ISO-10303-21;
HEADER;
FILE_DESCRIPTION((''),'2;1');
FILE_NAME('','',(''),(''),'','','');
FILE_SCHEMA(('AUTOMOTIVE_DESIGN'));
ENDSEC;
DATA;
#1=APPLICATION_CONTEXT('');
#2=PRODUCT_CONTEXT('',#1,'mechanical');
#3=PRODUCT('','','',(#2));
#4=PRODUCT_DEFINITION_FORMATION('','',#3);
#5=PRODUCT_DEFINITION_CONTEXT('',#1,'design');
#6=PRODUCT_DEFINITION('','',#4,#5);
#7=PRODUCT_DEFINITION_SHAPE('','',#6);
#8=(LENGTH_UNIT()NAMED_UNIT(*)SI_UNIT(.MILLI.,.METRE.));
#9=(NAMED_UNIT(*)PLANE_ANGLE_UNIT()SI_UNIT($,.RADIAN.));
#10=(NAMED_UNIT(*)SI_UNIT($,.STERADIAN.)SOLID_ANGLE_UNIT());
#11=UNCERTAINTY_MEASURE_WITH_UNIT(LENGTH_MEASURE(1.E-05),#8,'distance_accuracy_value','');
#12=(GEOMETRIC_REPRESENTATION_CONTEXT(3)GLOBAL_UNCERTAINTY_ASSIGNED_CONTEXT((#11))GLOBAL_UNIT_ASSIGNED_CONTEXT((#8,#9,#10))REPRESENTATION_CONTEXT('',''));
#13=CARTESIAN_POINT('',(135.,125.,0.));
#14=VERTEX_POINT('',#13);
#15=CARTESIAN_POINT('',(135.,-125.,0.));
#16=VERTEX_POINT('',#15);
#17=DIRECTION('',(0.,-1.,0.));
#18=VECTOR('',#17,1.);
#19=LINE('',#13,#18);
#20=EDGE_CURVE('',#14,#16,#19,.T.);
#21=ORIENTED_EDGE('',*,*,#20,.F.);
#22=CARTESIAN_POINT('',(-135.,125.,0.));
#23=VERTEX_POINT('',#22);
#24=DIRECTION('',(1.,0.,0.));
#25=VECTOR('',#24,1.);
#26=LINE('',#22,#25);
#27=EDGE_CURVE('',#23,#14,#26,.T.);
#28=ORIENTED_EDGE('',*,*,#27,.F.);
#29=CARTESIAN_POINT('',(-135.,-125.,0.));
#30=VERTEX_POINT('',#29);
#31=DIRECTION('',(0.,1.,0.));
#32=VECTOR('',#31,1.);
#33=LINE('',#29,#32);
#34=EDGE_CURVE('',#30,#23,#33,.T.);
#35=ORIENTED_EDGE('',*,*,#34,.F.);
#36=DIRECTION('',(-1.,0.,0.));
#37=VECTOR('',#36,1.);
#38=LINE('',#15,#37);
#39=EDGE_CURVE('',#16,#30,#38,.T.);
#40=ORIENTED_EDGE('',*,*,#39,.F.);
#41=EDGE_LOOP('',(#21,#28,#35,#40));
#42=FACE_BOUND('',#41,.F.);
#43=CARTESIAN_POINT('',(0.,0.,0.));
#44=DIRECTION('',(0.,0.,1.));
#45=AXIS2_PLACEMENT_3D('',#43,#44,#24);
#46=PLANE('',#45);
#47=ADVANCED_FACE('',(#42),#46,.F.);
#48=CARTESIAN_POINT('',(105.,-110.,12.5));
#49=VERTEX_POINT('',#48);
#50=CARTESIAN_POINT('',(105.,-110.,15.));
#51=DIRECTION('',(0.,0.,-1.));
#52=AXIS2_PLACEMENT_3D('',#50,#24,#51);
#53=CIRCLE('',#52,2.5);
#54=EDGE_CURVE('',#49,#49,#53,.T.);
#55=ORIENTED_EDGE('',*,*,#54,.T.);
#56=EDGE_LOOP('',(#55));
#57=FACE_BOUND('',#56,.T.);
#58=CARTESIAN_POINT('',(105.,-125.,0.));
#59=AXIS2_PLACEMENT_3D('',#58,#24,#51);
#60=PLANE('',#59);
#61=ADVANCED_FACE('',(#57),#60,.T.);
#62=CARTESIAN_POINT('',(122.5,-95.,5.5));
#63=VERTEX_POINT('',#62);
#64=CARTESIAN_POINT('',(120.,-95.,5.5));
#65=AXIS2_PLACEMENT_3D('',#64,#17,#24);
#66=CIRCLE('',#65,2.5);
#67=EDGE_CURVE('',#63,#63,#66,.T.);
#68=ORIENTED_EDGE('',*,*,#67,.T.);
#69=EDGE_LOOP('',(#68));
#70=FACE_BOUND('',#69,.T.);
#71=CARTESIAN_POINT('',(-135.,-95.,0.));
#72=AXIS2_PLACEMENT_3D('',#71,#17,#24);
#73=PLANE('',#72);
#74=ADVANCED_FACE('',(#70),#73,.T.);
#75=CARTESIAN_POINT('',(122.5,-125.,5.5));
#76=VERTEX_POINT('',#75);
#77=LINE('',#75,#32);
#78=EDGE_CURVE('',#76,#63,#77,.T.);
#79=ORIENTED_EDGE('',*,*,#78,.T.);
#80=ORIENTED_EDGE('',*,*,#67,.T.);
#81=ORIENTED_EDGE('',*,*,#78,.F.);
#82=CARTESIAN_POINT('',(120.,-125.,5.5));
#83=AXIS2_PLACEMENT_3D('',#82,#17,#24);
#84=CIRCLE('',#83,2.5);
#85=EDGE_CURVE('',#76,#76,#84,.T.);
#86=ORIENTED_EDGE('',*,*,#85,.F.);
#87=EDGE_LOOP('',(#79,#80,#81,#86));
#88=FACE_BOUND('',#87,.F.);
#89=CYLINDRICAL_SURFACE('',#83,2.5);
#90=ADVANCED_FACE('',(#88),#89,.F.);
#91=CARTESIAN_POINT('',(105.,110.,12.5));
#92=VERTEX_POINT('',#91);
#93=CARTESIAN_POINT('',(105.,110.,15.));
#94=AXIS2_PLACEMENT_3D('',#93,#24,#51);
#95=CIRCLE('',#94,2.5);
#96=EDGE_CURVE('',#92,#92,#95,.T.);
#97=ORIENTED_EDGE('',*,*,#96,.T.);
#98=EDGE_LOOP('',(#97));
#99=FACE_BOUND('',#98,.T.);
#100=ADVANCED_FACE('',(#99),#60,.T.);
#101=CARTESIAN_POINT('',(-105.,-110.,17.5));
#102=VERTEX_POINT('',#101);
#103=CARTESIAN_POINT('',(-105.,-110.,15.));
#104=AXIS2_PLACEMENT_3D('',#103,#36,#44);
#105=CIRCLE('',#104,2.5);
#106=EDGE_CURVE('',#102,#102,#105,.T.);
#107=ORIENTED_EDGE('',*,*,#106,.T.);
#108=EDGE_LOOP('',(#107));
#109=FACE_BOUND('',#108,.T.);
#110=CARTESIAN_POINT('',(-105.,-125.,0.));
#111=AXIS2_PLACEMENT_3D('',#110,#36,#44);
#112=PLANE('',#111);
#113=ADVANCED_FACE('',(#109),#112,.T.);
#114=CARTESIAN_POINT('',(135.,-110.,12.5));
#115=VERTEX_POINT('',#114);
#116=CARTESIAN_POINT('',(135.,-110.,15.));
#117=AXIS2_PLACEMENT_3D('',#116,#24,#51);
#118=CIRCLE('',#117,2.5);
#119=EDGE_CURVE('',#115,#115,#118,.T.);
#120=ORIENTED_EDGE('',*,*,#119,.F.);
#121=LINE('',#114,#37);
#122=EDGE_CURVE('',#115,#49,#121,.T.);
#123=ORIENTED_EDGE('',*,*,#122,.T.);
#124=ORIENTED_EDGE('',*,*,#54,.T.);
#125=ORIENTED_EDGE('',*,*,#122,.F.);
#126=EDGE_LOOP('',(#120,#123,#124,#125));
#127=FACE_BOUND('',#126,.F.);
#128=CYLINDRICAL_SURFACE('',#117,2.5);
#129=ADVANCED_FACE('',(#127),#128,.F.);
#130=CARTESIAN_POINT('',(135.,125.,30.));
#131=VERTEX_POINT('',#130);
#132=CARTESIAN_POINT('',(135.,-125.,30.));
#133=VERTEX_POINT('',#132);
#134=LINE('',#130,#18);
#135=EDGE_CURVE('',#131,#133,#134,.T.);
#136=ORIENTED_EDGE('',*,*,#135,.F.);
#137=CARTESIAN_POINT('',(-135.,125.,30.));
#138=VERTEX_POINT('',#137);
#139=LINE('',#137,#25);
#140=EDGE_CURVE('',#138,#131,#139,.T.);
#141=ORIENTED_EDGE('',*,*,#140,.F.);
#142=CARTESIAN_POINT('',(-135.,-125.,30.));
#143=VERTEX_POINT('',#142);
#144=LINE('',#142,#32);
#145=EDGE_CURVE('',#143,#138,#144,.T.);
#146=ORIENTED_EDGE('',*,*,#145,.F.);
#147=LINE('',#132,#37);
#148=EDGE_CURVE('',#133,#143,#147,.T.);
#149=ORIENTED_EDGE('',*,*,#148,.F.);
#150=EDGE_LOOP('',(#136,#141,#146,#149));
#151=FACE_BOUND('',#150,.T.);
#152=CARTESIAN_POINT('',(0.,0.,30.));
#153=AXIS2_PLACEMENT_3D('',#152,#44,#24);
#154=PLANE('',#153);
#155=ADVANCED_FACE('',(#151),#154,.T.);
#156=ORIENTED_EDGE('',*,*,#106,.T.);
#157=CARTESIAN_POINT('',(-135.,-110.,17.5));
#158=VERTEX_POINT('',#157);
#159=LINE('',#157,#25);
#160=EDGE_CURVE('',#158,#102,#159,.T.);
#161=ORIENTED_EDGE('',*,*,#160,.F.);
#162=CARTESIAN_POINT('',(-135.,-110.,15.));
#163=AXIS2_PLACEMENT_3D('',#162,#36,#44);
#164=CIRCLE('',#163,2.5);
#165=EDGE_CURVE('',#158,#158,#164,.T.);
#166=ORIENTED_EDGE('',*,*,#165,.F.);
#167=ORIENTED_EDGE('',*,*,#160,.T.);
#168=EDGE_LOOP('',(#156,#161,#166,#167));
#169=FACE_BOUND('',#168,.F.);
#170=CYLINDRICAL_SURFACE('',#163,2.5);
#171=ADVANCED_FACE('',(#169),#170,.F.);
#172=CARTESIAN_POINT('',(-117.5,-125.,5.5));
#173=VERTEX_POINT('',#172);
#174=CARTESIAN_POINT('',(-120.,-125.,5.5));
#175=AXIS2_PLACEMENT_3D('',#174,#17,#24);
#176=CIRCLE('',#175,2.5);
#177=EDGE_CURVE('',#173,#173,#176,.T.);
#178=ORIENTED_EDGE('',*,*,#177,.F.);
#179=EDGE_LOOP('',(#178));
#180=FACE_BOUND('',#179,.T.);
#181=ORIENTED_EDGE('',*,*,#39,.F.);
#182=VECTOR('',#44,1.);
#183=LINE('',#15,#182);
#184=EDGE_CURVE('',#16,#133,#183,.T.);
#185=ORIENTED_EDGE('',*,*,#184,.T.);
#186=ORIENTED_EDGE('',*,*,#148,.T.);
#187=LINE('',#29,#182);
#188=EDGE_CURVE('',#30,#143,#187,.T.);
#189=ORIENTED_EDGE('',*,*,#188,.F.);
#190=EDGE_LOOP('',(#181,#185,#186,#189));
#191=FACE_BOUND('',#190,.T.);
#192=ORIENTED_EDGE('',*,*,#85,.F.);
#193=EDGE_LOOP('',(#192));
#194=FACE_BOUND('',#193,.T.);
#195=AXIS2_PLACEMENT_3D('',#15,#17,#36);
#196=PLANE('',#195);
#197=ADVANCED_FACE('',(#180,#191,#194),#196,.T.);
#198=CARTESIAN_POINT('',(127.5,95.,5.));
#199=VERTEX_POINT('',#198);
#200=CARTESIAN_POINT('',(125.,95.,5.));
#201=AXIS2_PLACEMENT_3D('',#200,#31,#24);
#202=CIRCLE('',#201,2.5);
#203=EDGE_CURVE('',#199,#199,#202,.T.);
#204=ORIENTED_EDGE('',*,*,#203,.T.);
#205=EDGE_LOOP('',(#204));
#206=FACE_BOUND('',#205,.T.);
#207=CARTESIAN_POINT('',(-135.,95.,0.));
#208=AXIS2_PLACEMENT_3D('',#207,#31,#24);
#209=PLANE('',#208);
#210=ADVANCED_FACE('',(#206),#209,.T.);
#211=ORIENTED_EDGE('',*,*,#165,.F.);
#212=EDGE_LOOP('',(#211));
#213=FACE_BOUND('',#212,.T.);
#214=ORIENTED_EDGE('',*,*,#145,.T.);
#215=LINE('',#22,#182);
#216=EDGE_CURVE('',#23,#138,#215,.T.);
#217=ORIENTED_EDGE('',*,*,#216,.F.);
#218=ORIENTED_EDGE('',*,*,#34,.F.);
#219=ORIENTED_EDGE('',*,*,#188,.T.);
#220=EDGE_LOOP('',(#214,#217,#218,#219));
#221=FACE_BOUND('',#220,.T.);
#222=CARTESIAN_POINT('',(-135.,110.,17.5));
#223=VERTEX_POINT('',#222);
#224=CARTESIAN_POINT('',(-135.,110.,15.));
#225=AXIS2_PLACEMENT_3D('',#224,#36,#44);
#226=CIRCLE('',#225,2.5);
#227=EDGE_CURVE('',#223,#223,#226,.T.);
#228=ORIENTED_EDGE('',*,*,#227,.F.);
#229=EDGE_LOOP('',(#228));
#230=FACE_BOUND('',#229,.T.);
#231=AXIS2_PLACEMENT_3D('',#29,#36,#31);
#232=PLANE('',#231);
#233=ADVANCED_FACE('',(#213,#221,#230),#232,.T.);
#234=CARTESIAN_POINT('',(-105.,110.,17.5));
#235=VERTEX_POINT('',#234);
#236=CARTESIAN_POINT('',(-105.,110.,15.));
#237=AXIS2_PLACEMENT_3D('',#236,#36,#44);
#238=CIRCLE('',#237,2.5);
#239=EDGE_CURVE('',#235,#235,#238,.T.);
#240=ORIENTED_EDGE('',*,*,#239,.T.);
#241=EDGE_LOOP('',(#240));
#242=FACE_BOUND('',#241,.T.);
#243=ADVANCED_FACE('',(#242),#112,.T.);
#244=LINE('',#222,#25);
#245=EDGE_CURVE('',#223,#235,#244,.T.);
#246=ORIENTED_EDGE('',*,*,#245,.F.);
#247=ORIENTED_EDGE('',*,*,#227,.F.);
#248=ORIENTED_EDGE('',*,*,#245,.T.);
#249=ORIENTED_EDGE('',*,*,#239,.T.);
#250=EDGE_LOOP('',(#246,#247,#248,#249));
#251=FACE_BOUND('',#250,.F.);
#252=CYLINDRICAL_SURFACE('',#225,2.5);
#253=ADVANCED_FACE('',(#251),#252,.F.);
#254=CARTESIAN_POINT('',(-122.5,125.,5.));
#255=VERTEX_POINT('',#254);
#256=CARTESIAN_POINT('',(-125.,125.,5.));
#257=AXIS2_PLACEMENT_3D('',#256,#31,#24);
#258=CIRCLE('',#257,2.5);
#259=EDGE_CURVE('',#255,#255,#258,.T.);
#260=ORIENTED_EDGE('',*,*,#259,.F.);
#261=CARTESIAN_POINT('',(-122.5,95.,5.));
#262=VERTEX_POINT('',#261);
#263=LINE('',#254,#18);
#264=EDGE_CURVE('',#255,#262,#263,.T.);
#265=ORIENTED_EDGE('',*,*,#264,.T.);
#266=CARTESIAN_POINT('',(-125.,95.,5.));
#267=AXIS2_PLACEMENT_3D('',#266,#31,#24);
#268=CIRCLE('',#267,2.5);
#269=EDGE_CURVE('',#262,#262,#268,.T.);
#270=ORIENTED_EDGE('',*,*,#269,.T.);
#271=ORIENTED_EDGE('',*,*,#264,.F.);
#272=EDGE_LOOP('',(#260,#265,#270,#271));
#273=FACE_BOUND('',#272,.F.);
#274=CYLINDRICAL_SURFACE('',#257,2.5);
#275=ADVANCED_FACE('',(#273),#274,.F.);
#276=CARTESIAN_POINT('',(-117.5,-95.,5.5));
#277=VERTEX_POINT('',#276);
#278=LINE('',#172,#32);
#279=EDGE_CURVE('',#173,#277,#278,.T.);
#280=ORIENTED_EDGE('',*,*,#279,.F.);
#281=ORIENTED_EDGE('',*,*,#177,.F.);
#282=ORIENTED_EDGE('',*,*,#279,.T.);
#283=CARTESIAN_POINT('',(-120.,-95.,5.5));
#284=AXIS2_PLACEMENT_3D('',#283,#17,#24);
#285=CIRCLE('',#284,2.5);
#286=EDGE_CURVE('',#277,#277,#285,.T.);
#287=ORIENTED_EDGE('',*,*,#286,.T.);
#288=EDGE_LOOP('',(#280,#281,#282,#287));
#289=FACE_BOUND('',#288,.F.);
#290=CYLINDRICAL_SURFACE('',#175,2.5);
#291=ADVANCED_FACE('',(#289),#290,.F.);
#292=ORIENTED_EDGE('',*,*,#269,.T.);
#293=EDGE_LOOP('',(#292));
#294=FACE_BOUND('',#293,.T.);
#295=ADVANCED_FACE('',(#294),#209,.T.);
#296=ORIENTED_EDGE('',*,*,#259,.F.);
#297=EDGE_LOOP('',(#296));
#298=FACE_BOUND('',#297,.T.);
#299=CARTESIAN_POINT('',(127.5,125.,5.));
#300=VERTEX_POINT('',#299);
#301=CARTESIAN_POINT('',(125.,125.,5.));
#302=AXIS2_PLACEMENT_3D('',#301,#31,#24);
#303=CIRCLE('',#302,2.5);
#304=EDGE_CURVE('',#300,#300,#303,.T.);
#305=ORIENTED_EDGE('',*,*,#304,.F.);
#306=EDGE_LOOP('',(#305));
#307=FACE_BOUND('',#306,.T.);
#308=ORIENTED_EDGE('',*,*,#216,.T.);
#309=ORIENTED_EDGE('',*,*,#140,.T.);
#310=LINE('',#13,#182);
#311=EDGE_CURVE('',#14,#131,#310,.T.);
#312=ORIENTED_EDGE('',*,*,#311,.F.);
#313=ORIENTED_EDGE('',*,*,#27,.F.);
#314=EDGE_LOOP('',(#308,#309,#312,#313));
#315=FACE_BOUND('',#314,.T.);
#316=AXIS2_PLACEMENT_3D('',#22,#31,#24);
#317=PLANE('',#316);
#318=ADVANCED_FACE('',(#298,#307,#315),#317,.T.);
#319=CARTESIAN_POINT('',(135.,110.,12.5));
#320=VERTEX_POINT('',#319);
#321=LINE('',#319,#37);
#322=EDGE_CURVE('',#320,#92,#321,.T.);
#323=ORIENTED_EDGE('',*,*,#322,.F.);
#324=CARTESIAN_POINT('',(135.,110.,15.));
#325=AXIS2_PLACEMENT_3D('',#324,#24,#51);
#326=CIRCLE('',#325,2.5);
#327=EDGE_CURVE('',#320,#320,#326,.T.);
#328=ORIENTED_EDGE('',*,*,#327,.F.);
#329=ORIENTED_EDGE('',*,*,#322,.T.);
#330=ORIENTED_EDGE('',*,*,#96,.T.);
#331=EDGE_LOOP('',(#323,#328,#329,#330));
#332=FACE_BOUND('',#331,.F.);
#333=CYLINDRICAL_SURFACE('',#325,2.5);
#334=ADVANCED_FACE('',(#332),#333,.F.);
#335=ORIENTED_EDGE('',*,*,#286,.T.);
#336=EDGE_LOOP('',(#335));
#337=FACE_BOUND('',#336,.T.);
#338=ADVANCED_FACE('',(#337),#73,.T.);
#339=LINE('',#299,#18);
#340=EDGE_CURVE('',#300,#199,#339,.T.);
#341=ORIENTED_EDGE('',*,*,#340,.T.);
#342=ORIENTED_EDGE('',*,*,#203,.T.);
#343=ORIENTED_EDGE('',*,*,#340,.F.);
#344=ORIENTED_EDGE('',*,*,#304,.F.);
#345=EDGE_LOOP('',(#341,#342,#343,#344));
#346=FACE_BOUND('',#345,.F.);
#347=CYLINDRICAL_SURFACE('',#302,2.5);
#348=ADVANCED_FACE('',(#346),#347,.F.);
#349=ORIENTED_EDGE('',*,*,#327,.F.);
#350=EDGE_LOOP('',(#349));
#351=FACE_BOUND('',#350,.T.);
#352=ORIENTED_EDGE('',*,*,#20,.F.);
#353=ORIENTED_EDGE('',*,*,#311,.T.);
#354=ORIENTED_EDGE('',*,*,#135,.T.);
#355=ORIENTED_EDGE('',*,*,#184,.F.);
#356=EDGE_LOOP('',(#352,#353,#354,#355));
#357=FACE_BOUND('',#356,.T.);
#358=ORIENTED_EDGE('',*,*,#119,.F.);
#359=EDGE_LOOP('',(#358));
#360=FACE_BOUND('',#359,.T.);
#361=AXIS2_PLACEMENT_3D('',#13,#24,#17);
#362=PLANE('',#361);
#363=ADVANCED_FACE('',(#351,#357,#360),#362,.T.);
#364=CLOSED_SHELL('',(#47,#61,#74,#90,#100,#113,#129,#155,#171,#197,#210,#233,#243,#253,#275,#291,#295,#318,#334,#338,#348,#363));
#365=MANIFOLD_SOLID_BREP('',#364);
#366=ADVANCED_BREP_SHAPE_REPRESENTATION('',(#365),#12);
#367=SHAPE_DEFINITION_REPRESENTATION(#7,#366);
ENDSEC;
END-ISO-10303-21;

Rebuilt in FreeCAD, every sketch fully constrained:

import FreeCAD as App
import Part
import Sketcher

V = App.Vector
Q = App.Units.Quantity

doc = App.newDocument("Part")
body = doc.addObject("PartDesign::Body", "Body")

sketch1 = body.newObject("Sketcher::SketchObject", "Sketch")
sketch1.AttachmentSupport = (doc.getObject("XY_Plane"), [""])
sketch1.MapMode = "FlatFace"
sketch1.addGeometry(Part.LineSegment(V(-135, -125, 0), V(135, -125, 0)), False)
sketch1.addGeometry(Part.LineSegment(V(135, -125, 0), V(135, 125, 0)), False)
sketch1.addGeometry(Part.LineSegment(V(135, 125, 0), V(-135, 125, 0)), False)
sketch1.addGeometry(Part.LineSegment(V(-135, 125, 0), V(-135, -125, 0)), False)
sketch1.addConstraint(Sketcher.Constraint("Coincident", 0, 2, 1, 1))
sketch1.addConstraint(Sketcher.Constraint("Coincident", 1, 2, 2, 1))
sketch1.addConstraint(Sketcher.Constraint("Coincident", 2, 2, 3, 1))
sketch1.addConstraint(Sketcher.Constraint("Coincident", 3, 2, 0, 1))
sketch1.addConstraint(Sketcher.Constraint("Horizontal", 0))
sketch1.addConstraint(Sketcher.Constraint("Vertical", 1))
sketch1.addConstraint(Sketcher.Constraint("Horizontal", 2))
sketch1.addConstraint(Sketcher.Constraint("Vertical", 3))
sketch1.addConstraint(Sketcher.Constraint("Symmetric", 0, 2, 2, 2, -1, 1))
sketch1.addConstraint(Sketcher.Constraint("DistanceX", 0, 1, 0, 2, Q("270 mm")))
sketch1.addConstraint(Sketcher.Constraint("DistanceY", 1, 1, 1, 2, Q("250 mm")))
pad1 = body.newObject("PartDesign::Pad", "Pad")
pad1.Profile = sketch1
pad1.Length = 30

sketch2 = body.newObject("Sketcher::SketchObject", "Sketch001")
sketch2.AttachmentSupport = (doc.getObject("XZ_Plane"), [""])
sketch2.MapMode = "FlatFace"
sketch2.AttachmentOffset = App.Placement(V(0, 0, 125), App.Rotation())
sketch2.addGeometry(Part.Circle(V(-120, 5.5, 0), V(0, 0, 1), 2.5), False)
sketch2.addGeometry(Part.Circle(V(120, 5.5, 0), V(0, 0, 1), 2.5), False)
sketch2.addConstraint(Sketcher.Constraint("Equal", 0, 1))
sketch2.addConstraint(Sketcher.Constraint("Symmetric", 0, 3, 1, 3, -2))
sketch2.addConstraint(Sketcher.Constraint("Diameter", 0, Q("5 mm")))
sketch2.addConstraint(Sketcher.Constraint("DistanceX", 0, 3, -1, 1, Q("120 mm")))
sketch2.addConstraint(Sketcher.Constraint("DistanceY", -1, 1, 0, 3, Q("5.5 mm")))
pocket1 = body.newObject("PartDesign::Pocket", "Pocket")
pocket1.Profile = sketch2
pocket1.Length = 30

sketch3 = body.newObject("Sketcher::SketchObject", "Sketch002")
sketch3.AttachmentSupport = (doc.getObject("YZ_Plane"), [""])
sketch3.MapMode = "FlatFace"
sketch3.AttachmentOffset = App.Placement(V(0, 0, -135), App.Rotation())
sketch3.addGeometry(Part.Circle(V(110, 15, 0), V(0, 0, 1), 2.5), False)
sketch3.addGeometry(Part.Circle(V(-110, 15, 0), V(0, 0, 1), 2.5), False)
sketch3.addConstraint(Sketcher.Constraint("Equal", 0, 1))
sketch3.addConstraint(Sketcher.Constraint("Symmetric", 0, 3, 1, 3, -2))
sketch3.addConstraint(Sketcher.Constraint("Diameter", 0, Q("5 mm")))
sketch3.addConstraint(Sketcher.Constraint("DistanceY", -1, 1, 0, 3, Q("15 mm")))
sketch3.addConstraint(Sketcher.Constraint("DistanceX", -1, 1, 0, 3, Q("110 mm")))
pocket2 = body.newObject("PartDesign::Pocket", "Pocket001")
pocket2.Profile = sketch3
pocket2.Length = 30
pocket2.Reversed = True

sketch4 = body.newObject("Sketcher::SketchObject", "Sketch003")
sketch4.AttachmentSupport = (doc.getObject("XZ_Plane"), [""])
sketch4.MapMode = "FlatFace"
sketch4.AttachmentOffset = App.Placement(V(0, 0, -125), App.Rotation())
sketch4.addGeometry(Part.Circle(V(125, 5, 0), V(0, 0, 1), 2.5), False)
sketch4.addGeometry(Part.Circle(V(-125, 5, 0), V(0, 0, 1), 2.5), False)
sketch4.addConstraint(Sketcher.Constraint("Equal", 0, 1))
sketch4.addConstraint(Sketcher.Constraint("Symmetric", 0, 3, 1, 3, -2))
sketch4.addConstraint(Sketcher.Constraint("Diameter", 0, Q("5 mm")))
sketch4.addConstraint(Sketcher.Constraint("DistanceY", -1, 1, 0, 3, Q("5 mm")))
sketch4.addConstraint(Sketcher.Constraint("DistanceX", -1, 1, 0, 3, Q("125 mm")))
pocket3 = body.newObject("PartDesign::Pocket", "Pocket002")
pocket3.Profile = sketch4
pocket3.Length = 30
pocket3.Reversed = True

sketch5 = body.newObject("Sketcher::SketchObject", "Sketch004")
sketch5.AttachmentSupport = (doc.getObject("YZ_Plane"), [""])
sketch5.MapMode = "FlatFace"
sketch5.AttachmentOffset = App.Placement(V(0, 0, 135), App.Rotation())
sketch5.addGeometry(Part.Circle(V(110, 15, 0), V(0, 0, 1), 2.5), False)
sketch5.addConstraint(Sketcher.Constraint("Diameter", 0, Q("5 mm")))
sketch5.addConstraint(Sketcher.Constraint("DistanceX", -1, 1, 0, 3, Q("110 mm")))
sketch5.addConstraint(Sketcher.Constraint("DistanceY", -1, 1, 0, 3, Q("15 mm")))
pocket4 = body.newObject("PartDesign::Pocket", "Pocket003")
pocket4.Profile = sketch5
pocket4.Length = 30

sketch6 = body.newObject("Sketcher::SketchObject", "Sketch005")
sketch6.AttachmentSupport = (doc.getObject("YZ_Plane"), [""])
sketch6.MapMode = "FlatFace"
sketch6.AttachmentOffset = App.Placement(V(0, 0, 135), App.Rotation())
sketch6.addGeometry(Part.Circle(V(-110, 15, 0), V(0, 0, 1), 2.5), False)
sketch6.addConstraint(Sketcher.Constraint("Diameter", 0, Q("5 mm")))
sketch6.addConstraint(Sketcher.Constraint("DistanceX", 0, 3, -1, 1, Q("110 mm")))
sketch6.addConstraint(Sketcher.Constraint("DistanceY", -1, 1, 0, 3, Q("15 mm")))
pocket5 = body.newObject("PartDesign::Pocket", "Pocket004")
pocket5.Profile = sketch6
pocket5.Length = 30

doc.recompute()
